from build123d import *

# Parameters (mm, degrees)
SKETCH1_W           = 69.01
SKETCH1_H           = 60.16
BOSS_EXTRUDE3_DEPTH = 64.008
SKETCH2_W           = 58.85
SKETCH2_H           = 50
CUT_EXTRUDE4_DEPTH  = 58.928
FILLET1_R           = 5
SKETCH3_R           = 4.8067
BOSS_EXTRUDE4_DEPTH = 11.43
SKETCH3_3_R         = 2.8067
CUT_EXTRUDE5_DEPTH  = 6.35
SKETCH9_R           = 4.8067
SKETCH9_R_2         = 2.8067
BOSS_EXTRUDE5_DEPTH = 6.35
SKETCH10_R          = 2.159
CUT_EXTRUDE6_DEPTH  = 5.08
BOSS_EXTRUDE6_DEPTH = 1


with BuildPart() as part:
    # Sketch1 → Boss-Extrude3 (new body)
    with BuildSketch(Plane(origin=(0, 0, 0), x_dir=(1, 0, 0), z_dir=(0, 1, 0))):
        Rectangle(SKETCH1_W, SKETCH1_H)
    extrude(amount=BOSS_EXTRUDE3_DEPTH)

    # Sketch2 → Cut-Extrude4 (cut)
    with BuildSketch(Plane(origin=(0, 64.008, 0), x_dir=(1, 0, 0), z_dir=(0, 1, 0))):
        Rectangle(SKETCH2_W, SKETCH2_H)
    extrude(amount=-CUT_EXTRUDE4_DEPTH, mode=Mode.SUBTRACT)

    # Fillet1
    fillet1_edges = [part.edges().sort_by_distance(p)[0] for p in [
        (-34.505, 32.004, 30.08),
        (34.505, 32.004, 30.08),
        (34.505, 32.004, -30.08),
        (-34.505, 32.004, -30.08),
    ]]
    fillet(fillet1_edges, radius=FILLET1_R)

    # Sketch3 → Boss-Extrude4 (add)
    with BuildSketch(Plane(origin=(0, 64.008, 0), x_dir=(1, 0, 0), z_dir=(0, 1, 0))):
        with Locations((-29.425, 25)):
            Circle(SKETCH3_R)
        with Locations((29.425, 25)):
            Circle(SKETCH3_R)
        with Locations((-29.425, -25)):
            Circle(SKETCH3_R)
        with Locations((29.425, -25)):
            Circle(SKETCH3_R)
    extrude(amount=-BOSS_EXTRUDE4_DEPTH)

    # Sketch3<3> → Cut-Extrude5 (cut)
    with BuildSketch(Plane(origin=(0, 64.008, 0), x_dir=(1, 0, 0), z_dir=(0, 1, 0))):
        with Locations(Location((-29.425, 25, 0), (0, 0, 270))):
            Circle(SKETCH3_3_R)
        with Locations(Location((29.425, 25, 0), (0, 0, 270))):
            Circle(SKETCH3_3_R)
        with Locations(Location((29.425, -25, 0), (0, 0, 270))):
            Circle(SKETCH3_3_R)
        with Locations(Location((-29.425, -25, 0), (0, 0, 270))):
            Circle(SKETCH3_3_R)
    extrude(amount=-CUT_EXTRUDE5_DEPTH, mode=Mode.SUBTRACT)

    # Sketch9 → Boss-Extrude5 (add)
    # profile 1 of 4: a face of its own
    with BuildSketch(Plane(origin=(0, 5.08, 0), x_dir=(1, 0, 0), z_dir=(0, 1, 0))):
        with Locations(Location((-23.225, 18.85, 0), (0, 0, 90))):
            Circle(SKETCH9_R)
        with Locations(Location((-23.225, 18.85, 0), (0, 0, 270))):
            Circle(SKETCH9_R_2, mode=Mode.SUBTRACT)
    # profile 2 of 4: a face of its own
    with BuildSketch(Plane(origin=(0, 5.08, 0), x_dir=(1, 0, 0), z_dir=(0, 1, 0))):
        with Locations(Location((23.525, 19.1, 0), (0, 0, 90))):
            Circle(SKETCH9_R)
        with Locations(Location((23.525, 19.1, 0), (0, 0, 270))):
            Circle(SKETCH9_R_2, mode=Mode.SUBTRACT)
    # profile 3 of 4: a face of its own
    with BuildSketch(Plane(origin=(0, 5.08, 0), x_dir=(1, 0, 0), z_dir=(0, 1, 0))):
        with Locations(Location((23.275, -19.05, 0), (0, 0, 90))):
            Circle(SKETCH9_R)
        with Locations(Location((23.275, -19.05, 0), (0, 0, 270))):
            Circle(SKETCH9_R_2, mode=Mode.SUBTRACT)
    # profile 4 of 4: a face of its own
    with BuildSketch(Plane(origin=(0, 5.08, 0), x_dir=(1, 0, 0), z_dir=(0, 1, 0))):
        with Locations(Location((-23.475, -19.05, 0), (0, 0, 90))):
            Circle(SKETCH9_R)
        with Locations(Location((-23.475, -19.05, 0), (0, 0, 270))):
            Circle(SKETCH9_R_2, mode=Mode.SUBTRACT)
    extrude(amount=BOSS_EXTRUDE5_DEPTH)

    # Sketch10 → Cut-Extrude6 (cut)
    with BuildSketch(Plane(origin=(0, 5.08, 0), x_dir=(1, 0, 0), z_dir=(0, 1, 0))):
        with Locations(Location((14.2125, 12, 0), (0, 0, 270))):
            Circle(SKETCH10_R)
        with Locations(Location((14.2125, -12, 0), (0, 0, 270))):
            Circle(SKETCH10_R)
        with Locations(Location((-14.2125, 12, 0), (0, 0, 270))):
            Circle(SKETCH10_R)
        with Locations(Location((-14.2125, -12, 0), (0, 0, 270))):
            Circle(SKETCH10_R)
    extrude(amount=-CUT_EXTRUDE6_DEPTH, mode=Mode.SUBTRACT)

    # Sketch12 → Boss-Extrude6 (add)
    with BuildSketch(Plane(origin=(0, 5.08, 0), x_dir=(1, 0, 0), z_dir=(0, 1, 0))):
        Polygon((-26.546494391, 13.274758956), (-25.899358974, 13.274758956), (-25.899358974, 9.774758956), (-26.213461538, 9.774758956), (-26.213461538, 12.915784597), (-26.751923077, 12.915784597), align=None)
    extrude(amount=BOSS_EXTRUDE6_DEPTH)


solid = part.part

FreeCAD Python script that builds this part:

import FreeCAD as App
import Part
import Sketcher

V = App.Vector
Q = App.Units.Quantity


def edges_at(feature, points):
    """Names of the edges that pass closest to the given points."""
    edges = feature.Shape.Edges
    near = lambda p: min(range(len(edges)), key=lambda i: edges[i].distToShape(Part.Vertex(*p))[0])
    return sorted({f"Edge{near(p) + 1}" for p in points})

doc = App.newDocument("Part")
body = doc.addObject("PartDesign::Body", "Body")

sketch1 = body.newObject("Sketcher::SketchObject", "Sketch")
sketch1.AttachmentSupport = (doc.getObject("XZ_Plane"), [""])
sketch1.MapMode = "FlatFace"
sketch1.addGeometry(Part.LineSegment(V(-35, -30, 0), V(-35, 30, 0)), False)
sketch1.addGeometry(Part.LineSegment(V(-35, 30, 0), V(35, 30, 0)), False)
sketch1.addGeometry(Part.LineSegment(V(35, 30, 0), V(35, -30, 0)), False)
sketch1.addGeometry(Part.LineSegment(V(35, -30, 0), V(-35, -30, 0)), False)
sketch1.addConstraint(Sketcher.Constraint("Coincident", 0, 2, 1, 1))
sketch1.addConstraint(Sketcher.Constraint("Coincident", 1, 2, 2, 1))
sketch1.addConstraint(Sketcher.Constraint("Coincident", 2, 2, 3, 1))
sketch1.addConstraint(Sketcher.Constraint("Coincident", 3, 2, 0, 1))
sketch1.addConstraint(Sketcher.Constraint("Vertical", 0))
sketch1.addConstraint(Sketcher.Constraint("Horizontal", 1))
sketch1.addConstraint(Sketcher.Constraint("Vertical", 2))
sketch1.addConstraint(Sketcher.Constraint("Horizontal", 3))
sketch1.addConstraint(Sketcher.Constraint("Symmetric", 0, 2, 2, 2, -1, 1))
sketch1.addConstraint(Sketcher.Constraint("DistanceX", 1, 1, 1, 2, 69.01))
sketch1.addConstraint(Sketcher.Constraint("DistanceY", 0, 1, 0, 2, 60.16))
pad1 = body.newObject("PartDesign::Pad", "Pad")
pad1.Profile = sketch1
pad1.Length = Q("2.52 in")
pad1.Reversed = True

sketch2 = body.newObject("Sketcher::SketchObject", "Sketch001")
sketch2.AttachmentSupport = (doc.getObject("XZ_Plane"), [""])
sketch2.MapMode = "FlatFace"
sketch2.AttachmentOffset = App.Placement(V(0, 0, -2.52 * 25.4), App.Rotation())
sketch2.addGeometry(Part.LineSegment(V(-29, -25, 0), V(-29, 25, 0)), False)
sketch2.addGeometry(Part.LineSegment(V(-29, 25, 0), V(29, 25, 0)), False)
sketch2.addGeometry(Part.LineSegment(V(29, 25, 0), V(29, -25, 0)), False)
sketch2.addGeometry(Part.LineSegment(V(29, -25, 0), V(-29, -25, 0)), False)
sketch2.addConstraint(Sketcher.Constraint("Coincident", 0, 2, 1, 1))
sketch2.addConstraint(Sketcher.Constraint("Coincident", 1, 2, 2, 1))
sketch2.addConstraint(Sketcher.Constraint("Coincident", 2, 2, 3, 1))
sketch2.addConstraint(Sketcher.Constraint("Coincident", 3, 2, 0, 1))
sketch2.addConstraint(Sketcher.Constraint("Vertical", 0))
sketch2.addConstraint(Sketcher.Constraint("Horizontal", 1))
sketch2.addConstraint(Sketcher.Constraint("Vertical", 2))
sketch2.addConstraint(Sketcher.Constraint("Horizontal", 3))
sketch2.addConstraint(Sketcher.Constraint("Symmetric", 0, 2, 2, 2, -1, 1))
sketch2.addConstraint(Sketcher.Constraint("DistanceX", 1, 1, 1, 2, 58.85))
sketch2.addConstraint(Sketcher.Constraint("DistanceY", 0, 1, 0, 2, 50.0))
pocket1 = body.newObject("PartDesign::Pocket", "Pocket")
pocket1.Profile = sketch2
pocket1.Length = Q("2.32 in")
pocket1.Reversed = True
doc.recompute()

fillet = body.newObject("PartDesign::Fillet", "Fillet")
fillet.Base = (pocket1, edges_at(pocket1, [
    (-34.505, 32.004, 30.08),
    (34.505, 32.004, 30.08),
    (34.505, 32.004, -30.08),
    (-34.505, 32.004, -30.08),
]))
fillet.Radius = 5

sketch3 = body.newObject("Sketcher::SketchObject", "Sketch002")
sketch3.AttachmentSupport = (doc.getObject("XZ_Plane"), [""])
sketch3.MapMode = "FlatFace"
sketch3.AttachmentOffset = App.Placement(V(0, 0, -2.52 * 25.4), App.Rotation())
sketch3.addGeometry(Part.Circle(V(-29.4, -25, 0), V(0, 0, 1), 4.8), False)
sketch3.addGeometry(Part.Circle(V(29.4, -25, 0), V(0, 0, 1), 4.8), False)
sketch3.addGeometry(Part.Circle(V(-29.4, 25, 0), V(0, 0, 1), 4.8), False)
sketch3.addGeometry(Part.Circle(V(29.4, 25, 0), V(0, 0, 1), 4.8), False)
sketch3.addConstraint(Sketcher.Constraint("Equal", 0, 1))
sketch3.addConstraint(Sketcher.Constraint("Equal", 1, 2))
sketch3.addConstraint(Sketcher.Constraint("Equal", 2, 3))
sketch3.addConstraint(Sketcher.Constraint("Symmetric", 1, 3, 2, 3, -1, 1))
sketch3.addConstraint(Sketcher.Constraint("Symmetric", 0, 3, 3, 3, -1, 1))
sketch3.addConstraint(Sketcher.Constraint("Symmetric", 0, 3, 1, 3, -2))
sketch3.addConstraint(Sketcher.Constraint("Diameter", 0, 9.6134))
sketch3.addConstraint(Sketcher.Constraint("DistanceX", 0, 3, -1, 1, 29.425))
sketch3.addConstraint(Sketcher.Constraint("DistanceY", 0, 3, -1, 1, 25.0))
pad2 = body.newObject("PartDesign::Pad", "Pad001")
pad2.Profile = sketch3
pad2.Length = Q("0.45 in")

sketch4 = body.newObject("Sketcher::SketchObject", "Sketch003")
sketch4.AttachmentSupport = (doc.getObject("XZ_Plane"), [""])
sketch4.MapMode = "FlatFace"
sketch4.AttachmentOffset = App.Placement(V(0, 0, -2.52 * 25.4), App.Rotation())
sketch4.addGeometry(Part.Circle(V(-29.4, -25, 0), V(0, 0, 1), 2.8), False)
sketch4.addGeometry(Part.Circle(V(29.4, -25, 0), V(0, 0, 1), 2.8), False)
sketch4.addGeometry(Part.Circle(V(29.4, 25, 0), V(0, 0, 1), 2.8), False)
sketch4.addGeometry(Part.Circle(V(-29.4, 25, 0), V(0, 0, 1), 2.8), False)
sketch4.addConstraint(Sketcher.Constraint("Equal", 0, 1))
sketch4.addConstraint(Sketcher.Constraint("Equal", 1, 2))
sketch4.addConstraint(Sketcher.Constraint("Equal", 2, 3))
sketch4.addConstraint(Sketcher.Constraint("Symmetric", 0, 3, 2, 3, -1, 1))
sketch4.addConstraint(Sketcher.Constraint("Symmetric", 1, 3, 3, 3, -1, 1))
sketch4.addConstraint(Sketcher.Constraint("Symmetric", 0, 3, 1, 3, -2))
sketch4.addConstraint(Sketcher.Constraint("Diameter", 0, Q("0.221 in")))
sketch4.addConstraint(Sketcher.Constraint("DistanceX", 0, 3, -1, 1, 29.425))
sketch4.addConstraint(Sketcher.Constraint("DistanceY", 0, 3, -1, 1, 25.0))
pocket2 = body.newObject("PartDesign::Pocket", "Pocket001")
pocket2.Profile = sketch4
pocket2.Length = Q("0.25 in")
pocket2.Reversed = True

sketch5 = body.newObject("Sketcher::SketchObject", "Sketch004")
sketch5.AttachmentSupport = (doc.getObject("XZ_Plane"), [""])
sketch5.MapMode = "FlatFace"
sketch5.AttachmentOffset = App.Placement(V(0, 0, -0.2 * 25.4), App.Rotation())
sketch5.addGeometry(Part.Circle(V(-23.2, -18.9, 0), V(0, 0, 1), 4.8), False)
sketch5.addGeometry(Part.Circle(V(-23.2, -18.9, 0), V(0, 0, 1), 2.8), False)
sketch5.addGeometry(Part.Circle(V(23.5, -19.1, 0), V(0, 0, 1), 4.8), False)
sketch5.addGeometry(Part.Circle(V(23.5, -19.1, 0), V(0, 0, 1), 2.8), False)
sketch5.addGeometry(Part.Circle(V(23.3, 19.1, 0), V(0, 0, 1), 4.8), False)
sketch5.addGeometry(Part.Circle(V(23.3, 19.1, 0), V(0, 0, 1), 2.8), False)
sketch5.addGeometry(Part.Circle(V(-23.5, 19.1, 0), V(0, 0, 1), 4.8), False)
sketch5.addGeometry(Part.Circle(V(-23.5, 19.1, 0), V(0, 0, 1), 2.8), False)
sketch5.addConstraint(Sketcher.Constraint("Coincident", 1, 3, 0, 3))
sketch5.addConstraint(Sketcher.Constraint("Coincident", 3, 3, 2, 3))
sketch5.addConstraint(Sketcher.Constraint("Coincident", 5, 3, 4, 3))
sketch5.addConstraint(Sketcher.Constraint("Coincident", 7, 3, 6, 3))
sketch5.addConstraint(Sketcher.Constraint("Equal", 0, 2))
sketch5.addConstraint(Sketcher.Constraint("Equal", 1, 3))
sketch5.addConstraint(Sketcher.Constraint("Equal", 2, 4))
sketch5.addConstraint(Sketcher.Constraint("Equal", 3, 5))
sketch5.addConstraint(Sketcher.Constraint("Equal", 4, 6))
sketch5.addConstraint(Sketcher.Constraint("Equal", 5, 7))
sketch5.addConstraint(Sketcher.Constraint("Horizontal", 5, 3, 6, 3))
sketch5.addConstraint(Sketcher.Constraint("Diameter", 1, Q("0.221 in")))
sketch5.addConstraint(Sketcher.Constraint("Diameter", 0, 9.6134))
sketch5.addConstraint(Sketcher.Constraint("DistanceY", -1, 1, 4, 3, Q("0.75 in")))
sketch5.addConstraint(Sketcher.Constraint("DistanceX", 0, 3, -1, 1, 23.225))
sketch5.addConstraint(Sketcher.Constraint("DistanceY", 0, 3, -1, 1, 18.85))
sketch5.addConstraint(Sketcher.Constraint("DistanceX", -1, 1, 2, 3, 23.525))
sketch5.addConstraint(Sketcher.Constraint("DistanceY", 2, 3, -1, 1, 19.1))
sketch5.addConstraint(Sketcher.Constraint("DistanceX", -1, 1, 4, 3, 23.275))
sketch5.addConstraint(Sketcher.Constraint("DistanceX", 6, 3, -1, 1, 23.475))
pad3 = body.newObject("PartDesign::Pad", "Pad002")
pad3.Profile = sketch5
pad3.Length = Q("0.25 in")
pad3.Reversed = True

sketch6 = body.newObject("Sketcher::SketchObject", "Sketch005")
sketch6.AttachmentSupport = (doc.getObject("XZ_Plane"), [""])
sketch6.MapMode = "FlatFace"
sketch6.AttachmentOffset = App.Placement(V(0, 0, -0.2 * 25.4), App.Rotation())
sketch6.addGeometry(Part.Circle(V(14.2, -12, 0), V(0, 0, 1), 2.2), False)
sketch6.addGeometry(Part.Circle(V(14.2, 12, 0), V(0, 0, 1), 2.2), False)
sketch6.addGeometry(Part.Circle(V(-14.2, -12, 0), V(0, 0, 1), 2.2), False)
sketch6.addGeometry(Part.Circle(V(-14.2, 12, 0), V(0, 0, 1), 2.2), False)
sketch6.addConstraint(Sketcher.Constraint("Equal", 0, 1))
sketch6.addConstraint(Sketcher.Constraint("Equal", 1, 2))
sketch6.addConstraint(Sketcher.Constraint("Equal", 2, 3))
sketch6.addConstraint(Sketcher.Constraint("Symmetric", 1, 3, 2, 3, -1, 1))
sketch6.addConstraint(Sketcher.Constraint("Symmetric", 0, 3, 3, 3, -1, 1))
sketch6.addConstraint(Sketcher.Constraint("Symmetric", 0, 3, 2, 3, -2))
sketch6.addConstraint(Sketcher.Constraint("Diameter", 0, Q("0.17 in")))
sketch6.addConstraint(Sketcher.Constraint("DistanceX", -1, 1, 0, 3, 14.2125))
sketch6.addConstraint(Sketcher.Constraint("DistanceY", 0, 3, -1, 1, 12.0))
pocket3 = body.newObject("PartDesign::Pocket", "Pocket002")
pocket3.Profile = sketch6
pocket3.Length = Q("0.2 in")
pocket3.Reversed = True

sketch7 = body.newObject("Sketcher::SketchObject", "Sketch006")
sketch7.AttachmentSupport = (doc.getObject("XZ_Plane"), [""])
sketch7.MapMode = "FlatFace"
sketch7.AttachmentOffset = App.Placement(V(0, 0, -0.2 * 25.4), App.Rotation())
sketch7.addGeometry(Part.LineSegment(V(-25.9, -13.27, 0), V(-26.55, -13.27, 0)), False)
sketch7.addGeometry(Part.LineSegment(V(-26.55, -13.27, 0), V(-26.75, -12.92, 0)), False)
sketch7.addGeometry(Part.LineSegment(V(-26.75, -12.92, 0), V(-26.21, -12.92, 0)), False)
sketch7.addGeometry(Part.LineSegment(V(-26.21, -12.92, 0), V(-26.21, -9.77, 0)), False)
sketch7.addGeometry(Part.LineSegment(V(-26.21, -9.77, 0), V(-25.9, -9.77, 0)), False)
sketch7.addGeometry(Part.LineSegment(V(-25.9, -9.77, 0), V(-25.9, -13.27, 0)), False)
sketch7.addConstraint(Sketcher.Constraint("Coincident", 0, 2, 1, 1))
sketch7.addConstraint(Sketcher.Constraint("Coincident", 1, 2, 2, 1))
sketch7.addConstraint(Sketcher.Constraint("Coincident", 2, 2, 3, 1))
sketch7.addConstraint(Sketcher.Constraint("Coincident", 3, 2, 4, 1))
sketch7.addConstraint(Sketcher.Constraint("Coincident", 4, 2, 5, 1))
sketch7.addConstraint(Sketcher.Constraint("Coincident", 5, 2, 0, 1))
sketch7.addConstraint(Sketcher.Constraint("Horizontal", 0))
sketch7.addConstraint(Sketcher.Constraint("Horizontal", 2))
sketch7.addConstraint(Sketcher.Constraint("Vertical", 3))
sketch7.addConstraint(Sketcher.Constraint("Horizontal", 4))
sketch7.addConstraint(Sketcher.Constraint("Vertical", 5))
sketch7.addConstraint(Sketcher.Constraint("DistanceY", 5, 2, 5, 1, 3.5))
sketch7.addConstraint(Sketcher.Constraint("Distance", 1, 0.413598))
sketch7.addConstraint(Sketcher.Constraint("DistanceX", 2, 1, 2, 2, 0.538462))
sketch7.addConstraint(Sketcher.Constraint("DistanceX", 0, 2, 0, 1, 0.647135))
sketch7.addConstraint(Sketcher.Constraint("DistanceX", 4, 1, 4, 2, 0.314103))
sketch7.addConstraint(Sketcher.Constraint("DistanceY", 0, 2, -1, 1, 13.274759))
sketch7.addConstraint(Sketcher.Constraint("DistanceX", 2, 2, -1, 1, 26.213462))
pad4 = body.newObject("PartDesign::Pad", "Pad003")
pad4.Profile = sketch7
pad4.Length = 1
pad4.Reversed = True

doc.recompute()
